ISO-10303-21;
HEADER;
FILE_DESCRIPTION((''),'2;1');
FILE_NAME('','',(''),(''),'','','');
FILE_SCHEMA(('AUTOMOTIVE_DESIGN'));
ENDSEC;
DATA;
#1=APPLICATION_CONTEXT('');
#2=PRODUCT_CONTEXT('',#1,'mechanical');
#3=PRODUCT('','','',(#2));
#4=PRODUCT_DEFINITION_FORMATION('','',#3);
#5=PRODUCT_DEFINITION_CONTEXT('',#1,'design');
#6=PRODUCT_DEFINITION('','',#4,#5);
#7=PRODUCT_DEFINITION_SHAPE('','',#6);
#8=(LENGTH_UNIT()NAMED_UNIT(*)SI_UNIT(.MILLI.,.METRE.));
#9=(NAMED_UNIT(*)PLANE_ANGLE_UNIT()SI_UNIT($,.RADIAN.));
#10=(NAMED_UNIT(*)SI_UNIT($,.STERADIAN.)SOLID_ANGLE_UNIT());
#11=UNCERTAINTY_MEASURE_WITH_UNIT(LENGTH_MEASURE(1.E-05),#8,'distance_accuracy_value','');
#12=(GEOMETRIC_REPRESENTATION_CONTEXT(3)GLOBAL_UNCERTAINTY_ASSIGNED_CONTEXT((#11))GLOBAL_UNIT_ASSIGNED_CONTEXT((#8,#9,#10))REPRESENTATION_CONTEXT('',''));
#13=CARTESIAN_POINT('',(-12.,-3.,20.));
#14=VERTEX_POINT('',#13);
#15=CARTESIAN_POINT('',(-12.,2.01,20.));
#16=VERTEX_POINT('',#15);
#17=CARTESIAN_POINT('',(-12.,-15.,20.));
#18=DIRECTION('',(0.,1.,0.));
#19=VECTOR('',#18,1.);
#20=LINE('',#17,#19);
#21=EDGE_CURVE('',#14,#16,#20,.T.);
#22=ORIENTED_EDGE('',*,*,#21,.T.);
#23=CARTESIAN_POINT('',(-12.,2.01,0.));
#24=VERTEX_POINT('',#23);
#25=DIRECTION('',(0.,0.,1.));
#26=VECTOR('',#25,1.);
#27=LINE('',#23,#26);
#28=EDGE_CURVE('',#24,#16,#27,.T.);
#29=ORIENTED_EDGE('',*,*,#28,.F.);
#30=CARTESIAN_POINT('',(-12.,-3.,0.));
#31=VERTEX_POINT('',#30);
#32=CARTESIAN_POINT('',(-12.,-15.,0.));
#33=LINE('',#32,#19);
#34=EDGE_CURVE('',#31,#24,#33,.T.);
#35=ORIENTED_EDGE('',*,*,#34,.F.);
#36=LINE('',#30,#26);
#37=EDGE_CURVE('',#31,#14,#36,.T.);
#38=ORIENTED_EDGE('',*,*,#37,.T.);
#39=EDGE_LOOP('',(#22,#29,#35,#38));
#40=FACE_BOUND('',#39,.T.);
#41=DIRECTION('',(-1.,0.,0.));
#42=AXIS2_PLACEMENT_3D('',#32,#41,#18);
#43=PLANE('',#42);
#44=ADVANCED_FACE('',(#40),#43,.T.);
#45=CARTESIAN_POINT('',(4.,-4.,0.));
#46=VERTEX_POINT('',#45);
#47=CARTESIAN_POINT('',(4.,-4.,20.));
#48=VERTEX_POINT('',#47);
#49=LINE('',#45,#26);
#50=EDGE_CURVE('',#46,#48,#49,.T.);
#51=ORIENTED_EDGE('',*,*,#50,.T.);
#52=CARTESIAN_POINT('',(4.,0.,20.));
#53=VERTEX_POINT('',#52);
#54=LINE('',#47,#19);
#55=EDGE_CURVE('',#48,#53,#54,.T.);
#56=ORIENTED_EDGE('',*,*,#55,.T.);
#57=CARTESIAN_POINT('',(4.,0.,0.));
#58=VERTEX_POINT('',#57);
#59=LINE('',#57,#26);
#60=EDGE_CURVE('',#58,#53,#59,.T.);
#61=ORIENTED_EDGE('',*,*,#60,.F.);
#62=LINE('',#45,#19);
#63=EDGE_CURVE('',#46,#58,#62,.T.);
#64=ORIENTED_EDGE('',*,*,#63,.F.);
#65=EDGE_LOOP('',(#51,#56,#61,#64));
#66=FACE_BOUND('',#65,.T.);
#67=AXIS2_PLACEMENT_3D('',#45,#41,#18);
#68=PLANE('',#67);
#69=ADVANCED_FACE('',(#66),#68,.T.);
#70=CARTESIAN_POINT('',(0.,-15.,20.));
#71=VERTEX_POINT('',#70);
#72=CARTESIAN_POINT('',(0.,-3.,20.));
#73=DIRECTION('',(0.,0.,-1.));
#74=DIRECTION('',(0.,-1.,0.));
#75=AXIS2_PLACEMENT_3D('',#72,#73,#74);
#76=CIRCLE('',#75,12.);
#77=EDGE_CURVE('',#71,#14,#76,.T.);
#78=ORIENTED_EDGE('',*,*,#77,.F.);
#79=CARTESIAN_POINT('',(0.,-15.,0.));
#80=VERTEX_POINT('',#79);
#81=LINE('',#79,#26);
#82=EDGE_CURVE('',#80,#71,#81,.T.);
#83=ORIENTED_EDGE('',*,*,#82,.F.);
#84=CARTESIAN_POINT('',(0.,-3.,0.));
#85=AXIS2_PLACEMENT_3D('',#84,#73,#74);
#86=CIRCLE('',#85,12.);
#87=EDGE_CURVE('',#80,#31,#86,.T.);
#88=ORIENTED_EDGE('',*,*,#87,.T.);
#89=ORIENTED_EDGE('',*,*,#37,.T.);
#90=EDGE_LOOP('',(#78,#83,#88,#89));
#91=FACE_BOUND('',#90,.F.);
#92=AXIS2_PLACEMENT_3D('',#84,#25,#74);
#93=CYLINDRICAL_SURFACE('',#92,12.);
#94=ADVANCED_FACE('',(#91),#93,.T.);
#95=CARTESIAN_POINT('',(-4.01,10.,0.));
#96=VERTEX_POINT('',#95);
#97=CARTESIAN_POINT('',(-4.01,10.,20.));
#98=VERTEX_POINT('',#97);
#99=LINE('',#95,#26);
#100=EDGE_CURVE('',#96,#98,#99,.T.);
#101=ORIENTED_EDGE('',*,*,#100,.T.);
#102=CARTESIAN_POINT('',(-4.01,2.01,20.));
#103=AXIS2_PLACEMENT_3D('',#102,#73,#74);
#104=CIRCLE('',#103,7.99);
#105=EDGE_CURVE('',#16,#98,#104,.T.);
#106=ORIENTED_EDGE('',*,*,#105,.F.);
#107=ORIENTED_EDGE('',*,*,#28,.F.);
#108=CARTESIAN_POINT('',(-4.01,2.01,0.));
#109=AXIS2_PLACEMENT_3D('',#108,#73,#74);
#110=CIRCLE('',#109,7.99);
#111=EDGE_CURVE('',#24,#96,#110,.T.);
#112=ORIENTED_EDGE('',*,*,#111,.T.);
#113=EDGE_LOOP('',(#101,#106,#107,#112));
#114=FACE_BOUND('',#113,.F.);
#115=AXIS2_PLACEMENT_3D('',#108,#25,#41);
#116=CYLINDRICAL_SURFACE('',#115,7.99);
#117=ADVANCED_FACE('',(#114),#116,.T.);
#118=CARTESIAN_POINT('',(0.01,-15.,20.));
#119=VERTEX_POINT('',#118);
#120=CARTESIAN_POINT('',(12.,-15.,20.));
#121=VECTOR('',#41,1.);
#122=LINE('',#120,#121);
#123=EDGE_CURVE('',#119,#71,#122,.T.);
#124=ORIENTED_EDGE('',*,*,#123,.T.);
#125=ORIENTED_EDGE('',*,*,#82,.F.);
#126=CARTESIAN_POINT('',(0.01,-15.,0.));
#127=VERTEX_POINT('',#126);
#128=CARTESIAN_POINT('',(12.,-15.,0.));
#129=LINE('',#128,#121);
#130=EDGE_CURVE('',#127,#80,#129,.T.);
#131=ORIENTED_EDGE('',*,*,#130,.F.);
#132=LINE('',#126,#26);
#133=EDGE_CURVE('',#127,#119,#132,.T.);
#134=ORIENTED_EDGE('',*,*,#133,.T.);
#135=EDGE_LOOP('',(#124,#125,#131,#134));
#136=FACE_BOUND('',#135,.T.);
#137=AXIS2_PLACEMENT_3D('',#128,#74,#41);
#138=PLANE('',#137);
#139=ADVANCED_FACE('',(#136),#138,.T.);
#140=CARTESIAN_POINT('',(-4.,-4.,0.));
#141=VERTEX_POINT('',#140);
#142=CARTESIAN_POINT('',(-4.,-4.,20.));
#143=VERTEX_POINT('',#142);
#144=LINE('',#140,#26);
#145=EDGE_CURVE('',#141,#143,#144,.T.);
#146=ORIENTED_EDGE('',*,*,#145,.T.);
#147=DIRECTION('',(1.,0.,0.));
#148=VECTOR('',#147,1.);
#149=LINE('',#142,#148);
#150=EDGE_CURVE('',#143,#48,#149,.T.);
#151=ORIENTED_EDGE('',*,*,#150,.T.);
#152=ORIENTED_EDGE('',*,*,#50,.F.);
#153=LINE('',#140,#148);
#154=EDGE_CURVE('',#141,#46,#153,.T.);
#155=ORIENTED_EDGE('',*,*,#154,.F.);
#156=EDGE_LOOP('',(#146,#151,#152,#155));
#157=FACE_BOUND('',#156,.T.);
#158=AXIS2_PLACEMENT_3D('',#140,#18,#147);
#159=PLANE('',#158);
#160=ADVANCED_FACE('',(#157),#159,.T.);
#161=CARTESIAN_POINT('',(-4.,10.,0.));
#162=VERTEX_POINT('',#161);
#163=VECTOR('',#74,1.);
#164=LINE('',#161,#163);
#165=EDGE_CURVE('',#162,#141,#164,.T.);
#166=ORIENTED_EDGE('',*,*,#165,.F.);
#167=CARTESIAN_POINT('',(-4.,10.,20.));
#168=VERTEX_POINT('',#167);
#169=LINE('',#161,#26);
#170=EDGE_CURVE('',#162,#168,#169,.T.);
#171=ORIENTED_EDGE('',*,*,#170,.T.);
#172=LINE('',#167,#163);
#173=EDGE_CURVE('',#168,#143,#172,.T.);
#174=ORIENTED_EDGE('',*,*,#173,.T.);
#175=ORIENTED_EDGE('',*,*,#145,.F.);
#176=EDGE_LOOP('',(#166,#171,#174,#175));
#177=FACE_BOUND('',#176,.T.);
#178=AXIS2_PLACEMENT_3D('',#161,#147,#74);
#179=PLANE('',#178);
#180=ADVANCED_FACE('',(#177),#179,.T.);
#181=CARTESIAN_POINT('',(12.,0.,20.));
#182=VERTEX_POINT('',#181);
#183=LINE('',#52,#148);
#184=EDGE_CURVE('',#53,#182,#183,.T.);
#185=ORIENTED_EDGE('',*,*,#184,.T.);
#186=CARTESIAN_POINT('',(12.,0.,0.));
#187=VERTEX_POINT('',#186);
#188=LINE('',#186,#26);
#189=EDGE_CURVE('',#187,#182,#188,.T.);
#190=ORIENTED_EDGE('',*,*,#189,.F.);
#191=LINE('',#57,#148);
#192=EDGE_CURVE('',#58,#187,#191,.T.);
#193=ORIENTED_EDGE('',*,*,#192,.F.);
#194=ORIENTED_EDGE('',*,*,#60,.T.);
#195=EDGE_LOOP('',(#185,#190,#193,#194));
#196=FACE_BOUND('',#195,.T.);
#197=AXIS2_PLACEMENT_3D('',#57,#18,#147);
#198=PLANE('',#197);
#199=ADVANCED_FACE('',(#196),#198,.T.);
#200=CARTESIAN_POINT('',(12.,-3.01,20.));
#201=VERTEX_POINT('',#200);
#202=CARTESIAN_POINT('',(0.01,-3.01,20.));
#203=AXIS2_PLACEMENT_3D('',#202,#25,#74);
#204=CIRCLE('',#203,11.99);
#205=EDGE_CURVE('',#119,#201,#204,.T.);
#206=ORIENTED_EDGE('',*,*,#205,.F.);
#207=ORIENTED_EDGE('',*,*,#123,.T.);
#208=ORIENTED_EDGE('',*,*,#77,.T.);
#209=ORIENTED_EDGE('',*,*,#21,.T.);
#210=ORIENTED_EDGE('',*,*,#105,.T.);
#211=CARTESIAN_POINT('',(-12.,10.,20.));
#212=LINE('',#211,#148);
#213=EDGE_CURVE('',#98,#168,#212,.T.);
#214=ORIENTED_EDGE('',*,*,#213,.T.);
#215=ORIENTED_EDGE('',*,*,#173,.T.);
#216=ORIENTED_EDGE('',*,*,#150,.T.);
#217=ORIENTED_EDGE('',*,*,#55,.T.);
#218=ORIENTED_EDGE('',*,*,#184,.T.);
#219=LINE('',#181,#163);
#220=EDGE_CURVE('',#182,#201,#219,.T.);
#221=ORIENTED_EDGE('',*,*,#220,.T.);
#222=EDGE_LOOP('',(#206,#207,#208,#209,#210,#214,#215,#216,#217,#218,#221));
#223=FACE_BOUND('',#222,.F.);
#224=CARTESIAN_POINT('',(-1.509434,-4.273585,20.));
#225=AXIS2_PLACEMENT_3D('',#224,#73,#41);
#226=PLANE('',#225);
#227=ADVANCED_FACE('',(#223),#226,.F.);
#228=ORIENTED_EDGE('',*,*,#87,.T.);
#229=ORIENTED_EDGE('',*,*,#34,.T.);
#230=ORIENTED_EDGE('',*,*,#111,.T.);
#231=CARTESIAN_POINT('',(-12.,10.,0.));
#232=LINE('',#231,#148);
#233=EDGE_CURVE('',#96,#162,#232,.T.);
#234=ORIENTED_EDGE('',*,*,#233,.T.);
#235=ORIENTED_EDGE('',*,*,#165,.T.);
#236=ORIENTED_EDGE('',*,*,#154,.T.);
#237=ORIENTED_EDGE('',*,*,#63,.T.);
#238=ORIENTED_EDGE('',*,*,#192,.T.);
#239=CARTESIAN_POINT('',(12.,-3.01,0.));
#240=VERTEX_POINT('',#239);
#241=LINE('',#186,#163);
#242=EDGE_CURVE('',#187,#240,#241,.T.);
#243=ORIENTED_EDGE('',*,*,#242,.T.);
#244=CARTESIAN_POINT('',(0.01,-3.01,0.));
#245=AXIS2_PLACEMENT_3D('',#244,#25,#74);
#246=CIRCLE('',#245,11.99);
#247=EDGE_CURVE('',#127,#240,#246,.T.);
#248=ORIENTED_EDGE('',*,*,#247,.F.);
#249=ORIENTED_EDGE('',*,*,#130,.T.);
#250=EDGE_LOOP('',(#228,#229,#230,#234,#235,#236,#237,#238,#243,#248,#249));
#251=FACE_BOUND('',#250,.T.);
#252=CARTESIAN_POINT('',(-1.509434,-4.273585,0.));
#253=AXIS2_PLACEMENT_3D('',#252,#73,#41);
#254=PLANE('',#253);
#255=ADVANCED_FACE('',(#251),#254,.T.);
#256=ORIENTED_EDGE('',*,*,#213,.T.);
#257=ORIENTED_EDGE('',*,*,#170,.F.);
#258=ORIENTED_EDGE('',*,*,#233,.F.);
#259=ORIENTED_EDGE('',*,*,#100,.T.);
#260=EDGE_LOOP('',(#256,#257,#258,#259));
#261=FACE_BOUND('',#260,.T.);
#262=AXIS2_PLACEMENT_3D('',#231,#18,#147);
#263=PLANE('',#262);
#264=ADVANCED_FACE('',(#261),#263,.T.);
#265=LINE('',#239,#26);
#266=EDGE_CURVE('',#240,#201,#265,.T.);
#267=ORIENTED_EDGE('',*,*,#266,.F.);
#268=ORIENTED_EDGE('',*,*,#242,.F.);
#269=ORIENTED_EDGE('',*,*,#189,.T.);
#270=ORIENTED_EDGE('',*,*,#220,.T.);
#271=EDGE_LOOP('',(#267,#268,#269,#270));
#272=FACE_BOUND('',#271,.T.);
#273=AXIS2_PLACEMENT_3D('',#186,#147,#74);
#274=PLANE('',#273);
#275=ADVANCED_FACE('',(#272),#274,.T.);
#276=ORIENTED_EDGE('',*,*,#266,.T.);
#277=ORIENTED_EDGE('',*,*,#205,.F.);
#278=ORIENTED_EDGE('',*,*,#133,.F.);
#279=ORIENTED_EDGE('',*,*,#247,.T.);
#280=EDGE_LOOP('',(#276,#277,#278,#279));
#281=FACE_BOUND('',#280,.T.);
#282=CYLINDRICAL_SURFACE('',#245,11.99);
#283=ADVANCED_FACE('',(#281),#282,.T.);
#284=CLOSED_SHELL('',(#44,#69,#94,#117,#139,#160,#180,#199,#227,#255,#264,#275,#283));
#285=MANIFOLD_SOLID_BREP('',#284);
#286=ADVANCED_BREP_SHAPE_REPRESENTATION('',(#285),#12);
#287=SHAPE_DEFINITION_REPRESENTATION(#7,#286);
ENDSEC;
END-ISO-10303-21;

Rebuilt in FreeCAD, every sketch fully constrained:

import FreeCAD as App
import Part
import Sketcher

V = App.Vector


def edges_at(feature, points):
    """Names of the edges that pass closest to the given points."""
    edges = feature.Shape.Edges
    near = lambda p: min(range(len(edges)), key=lambda i: edges[i].distToShape(Part.Vertex(*p))[0])
    return sorted({f"Edge{near(p) + 1}" for p in points})

doc = App.newDocument("Part")
params = doc.addObject("Spreadsheet::Sheet", "Params")
for row, (alias, value) in enumerate([
    ("sketch1_width", "8 mm"),
    ("sketch1_height", "25 mm"),
    ("sketch1_height2", "15 mm"),
    ("sketch1_height3", "4 mm"),
    ("pad1_length", "20 mm"),
    ("fillet_radius", "12 mm"),
    ("fillet2_radius", "11.99 mm"),
    ("fillet3_radius", "7.99 mm"),
], start=1):
    params.set(f"A{row}", alias)
    params.set(f"B{row}", "=" + value)
    params.setAlias(f"B{row}", alias)

body = doc.addObject("PartDesign::Body", "Body")

sketch1 = doc.addObject("Sketcher::SketchObject", "Sketch")
body.addObject(sketch1)
sketch1.AttachmentSupport = (doc.XY_Plane, [""])
sketch1.MapMode = "FlatFace"
sketch1.addGeometry([
    Part.LineSegment(V(-4, 10, 0), V(-12, 10, 0)),
    Part.LineSegment(V(-12, 10, 0), V(-12, -15, 0)),
    Part.LineSegment(V(-12, -15, 0), V(12, -15, 0)),
    Part.LineSegment(V(12, -15, 0), V(12, 0, 0)),
    Part.LineSegment(V(12, 0, 0), V(4, 0, 0)),
    Part.LineSegment(V(4, 0, 0), V(4, -4, 0)),
    Part.LineSegment(V(4, -4, 0), V(-4, -4, 0)),
    Part.LineSegment(V(-4, -4, 0), V(-4, 10, 0)),
], False)
sketch1.addConstraint([
    Sketcher.Constraint("Coincident", 0, 2, 1, 1),
    Sketcher.Constraint("Coincident", 1, 2, 2, 1),
    Sketcher.Constraint("Coincident", 2, 2, 3, 1),
    Sketcher.Constraint("Coincident", 3, 2, 4, 1),
    Sketcher.Constraint("Coincident", 4, 2, 5, 1),
    Sketcher.Constraint("Coincident", 5, 2, 6, 1),
    Sketcher.Constraint("Coincident", 6, 2, 7, 1),
    Sketcher.Constraint("Coincident", 7, 2, 0, 1),
    Sketcher.Constraint("Horizontal", 0),
    Sketcher.Constraint("Vertical", 1),
    Sketcher.Constraint("Horizontal", 2),
    Sketcher.Constraint("Vertical", 3),
    Sketcher.Constraint("Horizontal", 4),
    Sketcher.Constraint("Vertical", 5),
    Sketcher.Constraint("Horizontal", 6),
    Sketcher.Constraint("Vertical", 7),
    Sketcher.Constraint("PointOnObject", 3, 2, -1),
    Sketcher.Constraint("Equal", 0, 4),
    Sketcher.Constraint("Equal", 4, 6),
    Sketcher.Constraint("DistanceX", 0, 2, 0, 1, 8.0),
    Sketcher.Constraint("DistanceY", 1, 2, 1, 1, 25.0),
    Sketcher.Constraint("DistanceY", 3, 1, 3, 2, 15.0),
    Sketcher.Constraint("DistanceY", 5, 2, 5, 1, 4.0),
    Sketcher.Constraint("DistanceX", 0, 2, -1, 1, 12.0),
])
sketch1.setExpression("Constraints[19]", "Params.sketch1_width")
sketch1.setExpression("Constraints[20]", "Params.sketch1_height")
sketch1.setExpression("Constraints[21]", "Params.sketch1_height2")
sketch1.setExpression("Constraints[22]", "Params.sketch1_height3")
pad1 = doc.addObject("PartDesign::Pad", "Pad")
body.addObject(pad1)
pad1.Profile = sketch1
pad1.setExpression("Length", "Params.pad1_length")
doc.recompute()

fillet = doc.addObject("PartDesign::Fillet", "Fillet")
body.addObject(fillet)
fillet.Base = (pad1, edges_at(pad1, [(-12, -15, 10)]))
fillet.setExpression("Radius", "Params.fillet_radius")
doc.recompute()

fillet2 = doc.addObject("PartDesign::Fillet", "Fillet001")
body.addObject(fillet2)
fillet2.Base = (fillet, edges_at(fillet, [(12, -15, 10)]))
fillet2.setExpression("Radius", "Params.fillet2_radius")
doc.recompute()

fillet3 = doc.addObject("PartDesign::Fillet", "Fillet002")
body.addObject(fillet3)
fillet3.Base = (fillet2, edges_at(fillet2, [(-12, 10, 10)]))
fillet3.setExpression("Radius", "Params.fillet3_radius")

doc.recompute()
